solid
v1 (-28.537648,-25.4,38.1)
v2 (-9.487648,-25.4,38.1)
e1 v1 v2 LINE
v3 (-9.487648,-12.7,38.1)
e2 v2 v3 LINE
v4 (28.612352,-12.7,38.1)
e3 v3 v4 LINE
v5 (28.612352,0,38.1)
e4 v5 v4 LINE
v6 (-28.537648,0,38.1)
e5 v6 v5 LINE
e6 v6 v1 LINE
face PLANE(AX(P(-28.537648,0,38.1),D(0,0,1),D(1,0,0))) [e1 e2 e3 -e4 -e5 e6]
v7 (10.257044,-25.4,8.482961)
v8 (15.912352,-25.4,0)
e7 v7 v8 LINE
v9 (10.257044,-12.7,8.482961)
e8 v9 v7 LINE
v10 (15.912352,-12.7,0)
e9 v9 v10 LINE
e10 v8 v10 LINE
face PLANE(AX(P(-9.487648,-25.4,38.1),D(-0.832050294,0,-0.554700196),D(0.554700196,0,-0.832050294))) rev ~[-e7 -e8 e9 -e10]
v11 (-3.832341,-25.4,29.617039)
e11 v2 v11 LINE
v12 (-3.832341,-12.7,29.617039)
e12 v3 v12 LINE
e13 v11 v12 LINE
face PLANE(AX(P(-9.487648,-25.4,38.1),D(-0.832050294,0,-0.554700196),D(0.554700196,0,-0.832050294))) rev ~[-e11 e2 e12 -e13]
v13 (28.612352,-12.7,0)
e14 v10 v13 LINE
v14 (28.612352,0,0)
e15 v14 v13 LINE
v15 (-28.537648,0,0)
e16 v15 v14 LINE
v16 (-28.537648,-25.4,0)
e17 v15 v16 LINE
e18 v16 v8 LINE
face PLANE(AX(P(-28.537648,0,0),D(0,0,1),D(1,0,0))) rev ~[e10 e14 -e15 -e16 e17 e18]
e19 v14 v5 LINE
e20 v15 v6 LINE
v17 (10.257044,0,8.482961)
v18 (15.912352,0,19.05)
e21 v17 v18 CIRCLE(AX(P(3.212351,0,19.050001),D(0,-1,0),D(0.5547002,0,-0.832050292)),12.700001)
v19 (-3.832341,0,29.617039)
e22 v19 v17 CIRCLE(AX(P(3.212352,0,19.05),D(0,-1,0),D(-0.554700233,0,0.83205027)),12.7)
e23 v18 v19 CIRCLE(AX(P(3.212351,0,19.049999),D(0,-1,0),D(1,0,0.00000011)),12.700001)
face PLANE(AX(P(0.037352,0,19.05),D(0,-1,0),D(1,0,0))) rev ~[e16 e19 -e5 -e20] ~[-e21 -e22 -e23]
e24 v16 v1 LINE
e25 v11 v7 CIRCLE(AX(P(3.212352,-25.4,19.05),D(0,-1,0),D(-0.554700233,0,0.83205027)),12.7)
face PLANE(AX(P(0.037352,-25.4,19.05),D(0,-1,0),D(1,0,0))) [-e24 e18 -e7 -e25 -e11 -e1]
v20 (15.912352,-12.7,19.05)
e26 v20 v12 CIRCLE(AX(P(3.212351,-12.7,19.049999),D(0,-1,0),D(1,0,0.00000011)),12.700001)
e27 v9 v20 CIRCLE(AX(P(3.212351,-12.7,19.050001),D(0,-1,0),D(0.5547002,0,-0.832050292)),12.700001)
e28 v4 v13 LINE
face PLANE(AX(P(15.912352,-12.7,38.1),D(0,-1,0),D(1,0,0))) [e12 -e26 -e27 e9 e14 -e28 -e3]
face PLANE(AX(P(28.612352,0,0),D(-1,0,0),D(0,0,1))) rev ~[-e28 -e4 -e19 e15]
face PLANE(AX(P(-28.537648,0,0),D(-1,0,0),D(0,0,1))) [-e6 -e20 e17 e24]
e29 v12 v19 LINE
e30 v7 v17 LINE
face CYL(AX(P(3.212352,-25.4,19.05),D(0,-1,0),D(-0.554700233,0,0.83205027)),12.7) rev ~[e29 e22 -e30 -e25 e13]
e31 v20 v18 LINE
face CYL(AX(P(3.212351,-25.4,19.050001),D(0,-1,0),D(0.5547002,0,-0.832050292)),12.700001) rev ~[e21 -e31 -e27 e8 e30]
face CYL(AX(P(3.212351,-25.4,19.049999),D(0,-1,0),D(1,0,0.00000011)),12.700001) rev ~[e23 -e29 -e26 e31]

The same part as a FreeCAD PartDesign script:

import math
import FreeCAD as App
import Part
import Sketcher
Q = App.Units.Quantity

doc = App.newDocument("Part")
params = doc.addObject("Spreadsheet::Sheet", "Params")
for row, (alias, value) in enumerate([
    ("sketch1_height", "1.5 in"),
    ("sketch1_width", "2.25 in"),
    ("pad1_length", "1 in"),
    ("sketch2_width", "0.5 in"),
    ("sketch3_width", "1 in"),
    ("sketch3_height", "1.5 in"),
    ("pocket2_length", "0.5 in"),
    ("sketch4_radius", "0.5 in"),
], start=1):
    params.set(f"A{row}", alias)
    params.set(f"B{row}", "=" + value)
    params.setAlias(f"B{row}", alias)

body = doc.addObject("PartDesign::Body", "Body")

# Sketch on XZ plane
sketch1 = doc.addObject("Sketcher::SketchObject", "Sketch")
body.addObject(sketch1)
sketch1.AttachmentSupport = (doc.XZ_Plane, [""])
sketch1.MapMode = "FlatFace"
sketch1.addGeometry(Part.LineSegment(App.Vector(-29, 38, 0), App.Vector(-29, 0, 0)), False)
sketch1.addGeometry(Part.LineSegment(App.Vector(-29, 0, 0), App.Vector(29, 0, 0)), False)
sketch1.addGeometry(Part.LineSegment(App.Vector(29, 0, 0), App.Vector(29, 38, 0)), False)
sketch1.addGeometry(Part.LineSegment(App.Vector(29, 38, 0), App.Vector(-29, 38, 0)), False)
sketch1.addConstraint(Sketcher.Constraint("Coincident", 0, 2, 1, 1))
sketch1.addConstraint(Sketcher.Constraint("Coincident", 1, 2, 2, 1))
sketch1.addConstraint(Sketcher.Constraint("Coincident", 2, 2, 3, 1))
sketch1.addConstraint(Sketcher.Constraint("Coincident", 3, 2, 0, 1))
sketch1.addConstraint(Sketcher.Constraint("Vertical", 0))
sketch1.addConstraint(Sketcher.Constraint("Horizontal", 1))
sketch1.addConstraint(Sketcher.Constraint("Vertical", 2))
sketch1.addConstraint(Sketcher.Constraint("Horizontal", 3))
sketch1.addConstraint(Sketcher.Constraint("PointOnObject", 0, 2, -1))
sketch1.addConstraint(Sketcher.Constraint("DistanceY", 0, 2, 0, 1, Q("1.5 in")))
sketch1.addConstraint(Sketcher.Constraint("DistanceX", 1, 1, 1, 2, Q("2.25 in")))
sketch1.addConstraint(Sketcher.Constraint("DistanceX", 0, 2, -1, 1, 28.537648))
sketch1.setExpression("Constraints[9]", "Params.sketch1_height")
sketch1.setExpression("Constraints[10]", "Params.sketch1_width")
pad1 = doc.addObject("PartDesign::Pad", "Pad")
body.addObject(pad1)
pad1.Profile = sketch1
pad1.setExpression("Length", "Params.pad1_length")

# Sketch on XY plane
sketch2 = doc.addObject("Sketcher::SketchObject", "Sketch001")
body.addObject(sketch2)
sketch2.AttachmentSupport = (doc.XY_Plane, [""])
sketch2.MapMode = "FlatFace"
sketch2.AttachmentOffset = App.Placement(App.Vector(0, 0, 1.5 * 25.4), App.Rotation())
sketch2.addGeometry(Part.LineSegment(App.Vector(16, -13, 0), App.Vector(16, -25, 0)), False)
sketch2.addGeometry(Part.LineSegment(App.Vector(16, -25, 0), App.Vector(29, -25, 0)), False)
sketch2.addGeometry(Part.LineSegment(App.Vector(29, -25, 0), App.Vector(29, -13, 0)), False)
sketch2.addGeometry(Part.LineSegment(App.Vector(29, -13, 0), App.Vector(16, -13, 0)), False)
sketch2.addConstraint(Sketcher.Constraint("Coincident", 0, 2, 1, 1))
sketch2.addConstraint(Sketcher.Constraint("Coincident", 1, 2, 2, 1))
sketch2.addConstraint(Sketcher.Constraint("Coincident", 2, 2, 3, 1))
sketch2.addConstraint(Sketcher.Constraint("Coincident", 3, 2, 0, 1))
sketch2.addConstraint(Sketcher.Constraint("Vertical", 0))
sketch2.addConstraint(Sketcher.Constraint("Horizontal", 1))
sketch2.addConstraint(Sketcher.Constraint("Vertical", 2))
sketch2.addConstraint(Sketcher.Constraint("Horizontal", 3))
sketch2.addConstraint(Sketcher.Constraint("Equal", 3, 0))
sketch2.addConstraint(Sketcher.Constraint("DistanceX", 1, 1, 1, 2, Q("0.5 in")))
sketch2.addConstraint(Sketcher.Constraint("DistanceY", 0, 2, -1, 1, Q("1 in")))
sketch2.addConstraint(Sketcher.Constraint("DistanceX", -1, 1, 0, 2, 15.912352))
sketch2.setExpression("Constraints[9]", "Params.sketch2_width")
pocket1 = doc.addObject("PartDesign::Pocket", "Pocket")
body.addObject(pocket1)
pocket1.Profile = sketch2
pocket1.Type = "ThroughAll"

# Sketch on XZ plane
sketch3 = doc.addObject("Sketcher::SketchObject", "Sketch002")
body.addObject(sketch3)
sketch3.AttachmentSupport = (doc.XZ_Plane, [""])
sketch3.MapMode = "FlatFace"
sketch3.AttachmentOffset = App.Placement(App.Vector(0, 0, 1 * 25.4), App.Rotation())
sketch3.addGeometry(Part.LineSegment(App.Vector(16, 38, 0), App.Vector(-9, 38, 0)), False)
sketch3.addGeometry(Part.LineSegment(App.Vector(-9, 38, 0), App.Vector(16, 0, 0)), False)
sketch3.addGeometry(Part.LineSegment(App.Vector(16, 0, 0), App.Vector(16, 38, 0)), False)
sketch3.addConstraint(Sketcher.Constraint("Coincident", 0, 2, 1, 1))
sketch3.addConstraint(Sketcher.Constraint("Coincident", 1, 2, 2, 1))
sketch3.addConstraint(Sketcher.Constraint("Coincident", 2, 2, 0, 1))
sketch3.addConstraint(Sketcher.Constraint("Horizontal", 0))
sketch3.addConstraint(Sketcher.Constraint("Vertical", 2))
sketch3.addConstraint(Sketcher.Constraint("PointOnObject", 1, 2, -1))
sketch3.addConstraint(Sketcher.Constraint("DistanceX", 0, 2, 0, 1, Q("1 in")))
sketch3.addConstraint(Sketcher.Constraint("DistanceY", 2, 1, 2, 2, Q("1.5 in")))
sketch3.addConstraint(Sketcher.Constraint("DistanceX", 0, 2, -1, 1, 9.487648))
sketch3.setExpression("Constraints[6]", "Params.sketch3_width")
sketch3.setExpression("Constraints[7]", "Params.sketch3_height")
pocket2 = doc.addObject("PartDesign::Pocket", "Pocket001")
body.addObject(pocket2)
pocket2.Profile = sketch3
pocket2.setExpression("Length", "Params.pocket2_length")

# Sketch on XZ plane
sketch4 = doc.addObject("Sketcher::SketchObject", "Sketch003")
body.addObject(sketch4)
sketch4.AttachmentSupport = (doc.XZ_Plane, [""])
sketch4.MapMode = "FlatFace"
sketch4.AttachmentOffset = App.Placement(App.Vector(0, 0, 1 * 25.4), App.Rotation())
sketch4.addGeometry(Part.ArcOfCircle(Part.Circle(App.Vector(3, 19, 0), App.Vector(0, 0, 1), 13), math.radians(124), math.radians(304)), False)
sketch4.addGeometry(Part.ArcOfCircle(Part.Circle(App.Vector(3, 19, 0), App.Vector(0, 0, 1), 13), math.radians(-56), math.radians(0)), False)
sketch4.addGeometry(Part.ArcOfCircle(Part.Circle(App.Vector(3, 19, 0), App.Vector(0, 0, 1), 13), math.radians(0), math.radians(124)), False)
sketch4.addConstraint(Sketcher.Constraint("Tangent", 0, 2, 1, 1))
sketch4.addConstraint(Sketcher.Constraint("Tangent", 1, 2, 2, 1))
sketch4.addConstraint(Sketcher.Constraint("Tangent", 2, 2, 0, 1))
sketch4.addConstraint(Sketcher.Constraint("Horizontal", 2, 3, 1, 2))
sketch4.addConstraint(Sketcher.Constraint("Radius", 0, Q("0.5 in")))
sketch4.addConstraint(Sketcher.Constraint("DistanceY", -1, 1, 0, 3, Q("0.75 in")))
sketch4.addConstraint(Sketcher.Constraint("DistanceX", 2, 2, 0, 2, Q("0.5547002 in")))
sketch4.addConstraint(Sketcher.Constraint("DistanceX", -1, 1, 1, 3, 3.212351))
sketch4.addConstraint(Sketcher.Constraint("DistanceY", -1, 1, 0, 2, 8.482961))
sketch4.setExpression("Constraints[4]", "Params.sketch4_radius")
pocket3 = doc.addObject("PartDesign::Pocket", "Pocket002")
body.addObject(pocket3)
pocket3.Profile = sketch4
pocket3.Type = "ThroughAll"

doc.recompute()
